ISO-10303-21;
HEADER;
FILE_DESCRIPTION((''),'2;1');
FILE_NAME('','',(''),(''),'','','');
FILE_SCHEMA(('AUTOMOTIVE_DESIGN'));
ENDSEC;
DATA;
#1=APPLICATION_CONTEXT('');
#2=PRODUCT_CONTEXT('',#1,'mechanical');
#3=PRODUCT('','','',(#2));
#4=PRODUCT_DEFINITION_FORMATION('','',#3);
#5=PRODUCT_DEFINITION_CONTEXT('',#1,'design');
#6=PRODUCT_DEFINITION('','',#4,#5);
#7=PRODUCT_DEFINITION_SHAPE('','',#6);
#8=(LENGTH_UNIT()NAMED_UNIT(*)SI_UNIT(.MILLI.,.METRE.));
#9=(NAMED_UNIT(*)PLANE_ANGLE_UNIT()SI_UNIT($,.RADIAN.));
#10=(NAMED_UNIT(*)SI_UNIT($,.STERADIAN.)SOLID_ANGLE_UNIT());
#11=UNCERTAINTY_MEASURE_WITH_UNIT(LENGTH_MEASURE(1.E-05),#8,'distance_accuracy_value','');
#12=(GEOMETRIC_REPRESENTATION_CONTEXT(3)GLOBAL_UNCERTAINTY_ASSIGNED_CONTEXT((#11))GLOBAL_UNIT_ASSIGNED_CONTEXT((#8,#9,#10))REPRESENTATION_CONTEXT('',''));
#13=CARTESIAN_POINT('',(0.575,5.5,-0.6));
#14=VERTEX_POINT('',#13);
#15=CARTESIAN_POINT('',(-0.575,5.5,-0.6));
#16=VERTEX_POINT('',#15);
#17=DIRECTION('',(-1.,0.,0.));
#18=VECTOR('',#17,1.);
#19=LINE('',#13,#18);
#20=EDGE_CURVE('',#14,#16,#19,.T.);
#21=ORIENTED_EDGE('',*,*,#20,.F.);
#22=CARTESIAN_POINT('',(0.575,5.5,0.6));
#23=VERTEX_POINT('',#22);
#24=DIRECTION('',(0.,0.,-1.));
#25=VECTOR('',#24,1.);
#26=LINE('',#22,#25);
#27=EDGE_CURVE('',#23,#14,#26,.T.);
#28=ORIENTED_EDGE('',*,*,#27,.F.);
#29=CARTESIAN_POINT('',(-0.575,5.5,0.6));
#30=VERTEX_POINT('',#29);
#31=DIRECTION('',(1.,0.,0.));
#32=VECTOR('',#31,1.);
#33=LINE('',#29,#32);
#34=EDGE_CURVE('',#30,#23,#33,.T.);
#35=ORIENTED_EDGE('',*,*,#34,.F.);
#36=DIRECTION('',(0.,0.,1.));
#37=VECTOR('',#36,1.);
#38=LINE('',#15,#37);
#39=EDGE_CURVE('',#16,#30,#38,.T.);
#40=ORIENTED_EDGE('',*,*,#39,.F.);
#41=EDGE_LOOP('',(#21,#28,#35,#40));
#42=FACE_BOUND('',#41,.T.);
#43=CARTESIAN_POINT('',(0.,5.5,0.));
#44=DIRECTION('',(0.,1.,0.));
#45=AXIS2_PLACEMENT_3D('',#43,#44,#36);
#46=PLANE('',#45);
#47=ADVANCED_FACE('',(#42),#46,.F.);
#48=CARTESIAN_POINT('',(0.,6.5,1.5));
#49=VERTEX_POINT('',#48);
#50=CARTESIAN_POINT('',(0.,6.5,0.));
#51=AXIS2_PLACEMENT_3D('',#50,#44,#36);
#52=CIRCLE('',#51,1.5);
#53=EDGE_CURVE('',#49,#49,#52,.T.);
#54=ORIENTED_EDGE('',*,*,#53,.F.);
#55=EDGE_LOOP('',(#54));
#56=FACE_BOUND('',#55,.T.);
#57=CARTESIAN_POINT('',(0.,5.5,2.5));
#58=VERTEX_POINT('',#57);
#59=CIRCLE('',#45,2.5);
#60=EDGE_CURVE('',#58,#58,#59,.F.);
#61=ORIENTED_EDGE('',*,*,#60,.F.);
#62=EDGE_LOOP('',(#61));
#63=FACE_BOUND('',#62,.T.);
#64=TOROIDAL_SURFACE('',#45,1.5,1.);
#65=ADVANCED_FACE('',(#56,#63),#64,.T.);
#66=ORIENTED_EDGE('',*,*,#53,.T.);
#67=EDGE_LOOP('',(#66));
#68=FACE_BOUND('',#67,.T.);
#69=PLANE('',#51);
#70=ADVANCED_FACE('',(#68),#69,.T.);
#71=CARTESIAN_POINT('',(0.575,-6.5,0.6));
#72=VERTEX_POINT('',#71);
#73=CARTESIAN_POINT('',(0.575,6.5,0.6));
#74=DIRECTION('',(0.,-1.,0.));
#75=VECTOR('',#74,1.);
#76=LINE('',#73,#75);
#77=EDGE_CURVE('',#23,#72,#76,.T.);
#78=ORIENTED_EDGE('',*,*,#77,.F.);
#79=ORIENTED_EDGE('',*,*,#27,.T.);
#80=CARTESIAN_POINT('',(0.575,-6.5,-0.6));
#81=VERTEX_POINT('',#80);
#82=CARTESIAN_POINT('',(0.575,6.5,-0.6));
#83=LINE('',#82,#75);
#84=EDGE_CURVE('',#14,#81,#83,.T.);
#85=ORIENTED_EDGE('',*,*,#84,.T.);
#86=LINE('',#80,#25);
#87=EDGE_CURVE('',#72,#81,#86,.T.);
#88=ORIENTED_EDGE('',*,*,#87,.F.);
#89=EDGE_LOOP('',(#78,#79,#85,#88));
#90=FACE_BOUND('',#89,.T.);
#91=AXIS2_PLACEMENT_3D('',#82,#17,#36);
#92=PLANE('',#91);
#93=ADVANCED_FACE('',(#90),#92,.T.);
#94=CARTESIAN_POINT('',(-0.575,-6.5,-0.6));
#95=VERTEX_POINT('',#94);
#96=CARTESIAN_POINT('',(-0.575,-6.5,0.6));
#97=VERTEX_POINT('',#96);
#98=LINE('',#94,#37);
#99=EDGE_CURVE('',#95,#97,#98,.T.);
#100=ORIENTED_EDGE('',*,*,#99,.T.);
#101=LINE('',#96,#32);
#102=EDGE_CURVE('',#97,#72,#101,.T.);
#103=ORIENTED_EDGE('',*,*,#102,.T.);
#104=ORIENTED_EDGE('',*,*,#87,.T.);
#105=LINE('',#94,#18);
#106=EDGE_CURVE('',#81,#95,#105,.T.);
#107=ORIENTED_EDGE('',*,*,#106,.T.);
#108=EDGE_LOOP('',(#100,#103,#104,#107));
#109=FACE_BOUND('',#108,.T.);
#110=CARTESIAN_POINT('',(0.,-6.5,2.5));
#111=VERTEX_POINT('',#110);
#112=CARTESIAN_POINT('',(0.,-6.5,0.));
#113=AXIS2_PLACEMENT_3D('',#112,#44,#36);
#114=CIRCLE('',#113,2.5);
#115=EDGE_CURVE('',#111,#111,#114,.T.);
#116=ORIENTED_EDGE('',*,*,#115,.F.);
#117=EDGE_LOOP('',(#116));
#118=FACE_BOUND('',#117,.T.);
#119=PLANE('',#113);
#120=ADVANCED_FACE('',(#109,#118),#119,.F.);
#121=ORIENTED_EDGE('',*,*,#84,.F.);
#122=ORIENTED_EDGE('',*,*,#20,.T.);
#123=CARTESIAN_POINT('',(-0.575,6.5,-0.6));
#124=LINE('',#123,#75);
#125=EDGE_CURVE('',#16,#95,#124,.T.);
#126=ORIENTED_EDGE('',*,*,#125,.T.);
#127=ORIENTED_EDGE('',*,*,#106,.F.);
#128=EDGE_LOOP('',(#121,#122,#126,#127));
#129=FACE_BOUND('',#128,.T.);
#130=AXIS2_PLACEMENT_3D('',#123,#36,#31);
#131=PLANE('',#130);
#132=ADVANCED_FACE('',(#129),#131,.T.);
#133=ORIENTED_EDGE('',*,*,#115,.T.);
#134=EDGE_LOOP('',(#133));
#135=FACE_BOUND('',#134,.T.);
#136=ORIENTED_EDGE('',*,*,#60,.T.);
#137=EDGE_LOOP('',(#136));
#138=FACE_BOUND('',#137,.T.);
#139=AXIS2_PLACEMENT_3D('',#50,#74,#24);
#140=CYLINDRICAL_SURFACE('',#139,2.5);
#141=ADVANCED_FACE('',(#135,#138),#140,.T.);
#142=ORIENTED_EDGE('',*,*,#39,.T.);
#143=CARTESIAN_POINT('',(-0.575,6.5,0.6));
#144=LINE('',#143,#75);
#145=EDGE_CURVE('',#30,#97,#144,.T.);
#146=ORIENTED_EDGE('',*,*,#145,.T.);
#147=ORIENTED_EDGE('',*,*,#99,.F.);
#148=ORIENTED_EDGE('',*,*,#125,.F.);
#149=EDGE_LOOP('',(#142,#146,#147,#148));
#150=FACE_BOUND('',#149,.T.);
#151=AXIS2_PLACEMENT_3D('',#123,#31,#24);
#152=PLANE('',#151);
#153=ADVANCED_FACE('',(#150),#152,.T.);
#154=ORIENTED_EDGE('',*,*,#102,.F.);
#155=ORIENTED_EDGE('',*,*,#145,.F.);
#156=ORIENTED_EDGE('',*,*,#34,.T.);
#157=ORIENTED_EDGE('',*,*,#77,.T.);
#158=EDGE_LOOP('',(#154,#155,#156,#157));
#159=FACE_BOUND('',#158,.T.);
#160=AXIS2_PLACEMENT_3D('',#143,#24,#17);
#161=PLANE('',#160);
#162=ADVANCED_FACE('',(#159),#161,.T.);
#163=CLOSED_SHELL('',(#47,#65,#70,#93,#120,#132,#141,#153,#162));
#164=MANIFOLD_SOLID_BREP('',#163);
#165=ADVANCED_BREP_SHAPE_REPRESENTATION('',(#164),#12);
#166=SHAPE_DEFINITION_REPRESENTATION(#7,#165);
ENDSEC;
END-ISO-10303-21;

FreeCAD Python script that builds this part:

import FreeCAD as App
import Part
import Sketcher
from FreeCAD import Vector
Q = App.Units.Quantity


def edges_at(feature, points):
    """Names of the edges that pass closest to the given points."""
    edges = feature.Shape.Edges
    near = lambda p: min(range(len(edges)), key=lambda i: edges[i].distToShape(Part.Vertex(*p))[0])
    return sorted({f"Edge{near(p) + 1}" for p in points})


def add_polygon(sketch, points):
    """Adds a closed chain of lines whose ends are joined by coincident constraints."""
    first, n = sketch.GeometryCount, len(points)
    for a, b in zip(points, points[1:] + points[:1]):
        sketch.addGeometry(Part.LineSegment(App.Vector(*a, 0), App.Vector(*b, 0)), False)
    for i in range(n):
        sketch.addConstraint(Sketcher.Constraint("Coincident", first + i, 2, first + (i + 1) % n, 1))

doc = App.newDocument("Part")
body = doc.addObject("PartDesign::Body", "Body")

# Sketch on XZ plane
sketch1 = body.newObject("Sketcher::SketchObject", "Sketch")
sketch1.AttachmentSupport = (doc.getObject("XZ_Plane"), [""])
sketch1.MapMode = "FlatFace"
sketch1.addGeometry(Part.Circle(Vector(0, 0, 0), Vector(0, 0, 1), 2.5), False)  # 0
add_polygon(sketch1, [(0.6, 0.6), (-0.6, 0.6), (-0.6, -0.6), (0.6, -0.6)])  # lines 1-4
sketch1.addConstraint([
    Sketcher.Constraint("Horizontal", 1),
    Sketcher.Constraint("Vertical", 2),
    Sketcher.Constraint("Horizontal", 3),
    Sketcher.Constraint("Vertical", 4),
    Sketcher.Constraint("Coincident", 0, 3, -1, 1),
    Sketcher.Constraint("Symmetric", 1, 2, 3, 2, -1, 1),
    Sketcher.Constraint("Diameter", 0, Q("5 mm")),
    Sketcher.Constraint("DistanceY", 2, 2, 2, 1, Q("1.2 mm")),
    Sketcher.Constraint("DistanceX", 1, 2, 1, 1, Q("1.15 mm")),
])
pad1 = body.newObject("PartDesign::Pad", "Pad")
pad1.Profile = sketch1
pad1.Length = 13
pad1.Midplane = True
doc.recompute()

fillet = body.newObject("PartDesign::Fillet", "Fillet")
fillet.Base = (pad1, edges_at(pad1, [(-2.5, 6.5, 0)]))
fillet.Radius = 1

# Sketch on XZ plane
sketch2 = body.newObject("Sketcher::SketchObject", "Sketch001")
sketch2.AttachmentSupport = (doc.getObject("XZ_Plane"), [""])
sketch2.MapMode = "FlatFace"
sketch2.AttachmentOffset = App.Placement(Vector(0, 0, -6.5), App.Rotation())
add_polygon(sketch2, [(-0.6, -0.6), (-0.6, 0.6), (0.6, 0.6), (0.6, -0.6)])  # lines 0-3
sketch2.addConstraint([
    Sketcher.Constraint("Vertical", 0),
    Sketcher.Constraint("Horizontal", 1),
    Sketcher.Constraint("Vertical", 2),
    Sketcher.Constraint("Horizontal", 3),
    Sketcher.Constraint("Symmetric", 0, 2, 2, 2, -1, 1),
    Sketcher.Constraint("DistanceY", 0, 1, 0, 2, Q("1.2 mm")),
    Sketcher.Constraint("DistanceX", 1, 1, 1, 2, Q("1.15 mm")),
])
pad2 = body.newObject("PartDesign::Pad", "Pad001")
pad2.Profile = sketch2
pad2.Length = 1

doc.recompute()
